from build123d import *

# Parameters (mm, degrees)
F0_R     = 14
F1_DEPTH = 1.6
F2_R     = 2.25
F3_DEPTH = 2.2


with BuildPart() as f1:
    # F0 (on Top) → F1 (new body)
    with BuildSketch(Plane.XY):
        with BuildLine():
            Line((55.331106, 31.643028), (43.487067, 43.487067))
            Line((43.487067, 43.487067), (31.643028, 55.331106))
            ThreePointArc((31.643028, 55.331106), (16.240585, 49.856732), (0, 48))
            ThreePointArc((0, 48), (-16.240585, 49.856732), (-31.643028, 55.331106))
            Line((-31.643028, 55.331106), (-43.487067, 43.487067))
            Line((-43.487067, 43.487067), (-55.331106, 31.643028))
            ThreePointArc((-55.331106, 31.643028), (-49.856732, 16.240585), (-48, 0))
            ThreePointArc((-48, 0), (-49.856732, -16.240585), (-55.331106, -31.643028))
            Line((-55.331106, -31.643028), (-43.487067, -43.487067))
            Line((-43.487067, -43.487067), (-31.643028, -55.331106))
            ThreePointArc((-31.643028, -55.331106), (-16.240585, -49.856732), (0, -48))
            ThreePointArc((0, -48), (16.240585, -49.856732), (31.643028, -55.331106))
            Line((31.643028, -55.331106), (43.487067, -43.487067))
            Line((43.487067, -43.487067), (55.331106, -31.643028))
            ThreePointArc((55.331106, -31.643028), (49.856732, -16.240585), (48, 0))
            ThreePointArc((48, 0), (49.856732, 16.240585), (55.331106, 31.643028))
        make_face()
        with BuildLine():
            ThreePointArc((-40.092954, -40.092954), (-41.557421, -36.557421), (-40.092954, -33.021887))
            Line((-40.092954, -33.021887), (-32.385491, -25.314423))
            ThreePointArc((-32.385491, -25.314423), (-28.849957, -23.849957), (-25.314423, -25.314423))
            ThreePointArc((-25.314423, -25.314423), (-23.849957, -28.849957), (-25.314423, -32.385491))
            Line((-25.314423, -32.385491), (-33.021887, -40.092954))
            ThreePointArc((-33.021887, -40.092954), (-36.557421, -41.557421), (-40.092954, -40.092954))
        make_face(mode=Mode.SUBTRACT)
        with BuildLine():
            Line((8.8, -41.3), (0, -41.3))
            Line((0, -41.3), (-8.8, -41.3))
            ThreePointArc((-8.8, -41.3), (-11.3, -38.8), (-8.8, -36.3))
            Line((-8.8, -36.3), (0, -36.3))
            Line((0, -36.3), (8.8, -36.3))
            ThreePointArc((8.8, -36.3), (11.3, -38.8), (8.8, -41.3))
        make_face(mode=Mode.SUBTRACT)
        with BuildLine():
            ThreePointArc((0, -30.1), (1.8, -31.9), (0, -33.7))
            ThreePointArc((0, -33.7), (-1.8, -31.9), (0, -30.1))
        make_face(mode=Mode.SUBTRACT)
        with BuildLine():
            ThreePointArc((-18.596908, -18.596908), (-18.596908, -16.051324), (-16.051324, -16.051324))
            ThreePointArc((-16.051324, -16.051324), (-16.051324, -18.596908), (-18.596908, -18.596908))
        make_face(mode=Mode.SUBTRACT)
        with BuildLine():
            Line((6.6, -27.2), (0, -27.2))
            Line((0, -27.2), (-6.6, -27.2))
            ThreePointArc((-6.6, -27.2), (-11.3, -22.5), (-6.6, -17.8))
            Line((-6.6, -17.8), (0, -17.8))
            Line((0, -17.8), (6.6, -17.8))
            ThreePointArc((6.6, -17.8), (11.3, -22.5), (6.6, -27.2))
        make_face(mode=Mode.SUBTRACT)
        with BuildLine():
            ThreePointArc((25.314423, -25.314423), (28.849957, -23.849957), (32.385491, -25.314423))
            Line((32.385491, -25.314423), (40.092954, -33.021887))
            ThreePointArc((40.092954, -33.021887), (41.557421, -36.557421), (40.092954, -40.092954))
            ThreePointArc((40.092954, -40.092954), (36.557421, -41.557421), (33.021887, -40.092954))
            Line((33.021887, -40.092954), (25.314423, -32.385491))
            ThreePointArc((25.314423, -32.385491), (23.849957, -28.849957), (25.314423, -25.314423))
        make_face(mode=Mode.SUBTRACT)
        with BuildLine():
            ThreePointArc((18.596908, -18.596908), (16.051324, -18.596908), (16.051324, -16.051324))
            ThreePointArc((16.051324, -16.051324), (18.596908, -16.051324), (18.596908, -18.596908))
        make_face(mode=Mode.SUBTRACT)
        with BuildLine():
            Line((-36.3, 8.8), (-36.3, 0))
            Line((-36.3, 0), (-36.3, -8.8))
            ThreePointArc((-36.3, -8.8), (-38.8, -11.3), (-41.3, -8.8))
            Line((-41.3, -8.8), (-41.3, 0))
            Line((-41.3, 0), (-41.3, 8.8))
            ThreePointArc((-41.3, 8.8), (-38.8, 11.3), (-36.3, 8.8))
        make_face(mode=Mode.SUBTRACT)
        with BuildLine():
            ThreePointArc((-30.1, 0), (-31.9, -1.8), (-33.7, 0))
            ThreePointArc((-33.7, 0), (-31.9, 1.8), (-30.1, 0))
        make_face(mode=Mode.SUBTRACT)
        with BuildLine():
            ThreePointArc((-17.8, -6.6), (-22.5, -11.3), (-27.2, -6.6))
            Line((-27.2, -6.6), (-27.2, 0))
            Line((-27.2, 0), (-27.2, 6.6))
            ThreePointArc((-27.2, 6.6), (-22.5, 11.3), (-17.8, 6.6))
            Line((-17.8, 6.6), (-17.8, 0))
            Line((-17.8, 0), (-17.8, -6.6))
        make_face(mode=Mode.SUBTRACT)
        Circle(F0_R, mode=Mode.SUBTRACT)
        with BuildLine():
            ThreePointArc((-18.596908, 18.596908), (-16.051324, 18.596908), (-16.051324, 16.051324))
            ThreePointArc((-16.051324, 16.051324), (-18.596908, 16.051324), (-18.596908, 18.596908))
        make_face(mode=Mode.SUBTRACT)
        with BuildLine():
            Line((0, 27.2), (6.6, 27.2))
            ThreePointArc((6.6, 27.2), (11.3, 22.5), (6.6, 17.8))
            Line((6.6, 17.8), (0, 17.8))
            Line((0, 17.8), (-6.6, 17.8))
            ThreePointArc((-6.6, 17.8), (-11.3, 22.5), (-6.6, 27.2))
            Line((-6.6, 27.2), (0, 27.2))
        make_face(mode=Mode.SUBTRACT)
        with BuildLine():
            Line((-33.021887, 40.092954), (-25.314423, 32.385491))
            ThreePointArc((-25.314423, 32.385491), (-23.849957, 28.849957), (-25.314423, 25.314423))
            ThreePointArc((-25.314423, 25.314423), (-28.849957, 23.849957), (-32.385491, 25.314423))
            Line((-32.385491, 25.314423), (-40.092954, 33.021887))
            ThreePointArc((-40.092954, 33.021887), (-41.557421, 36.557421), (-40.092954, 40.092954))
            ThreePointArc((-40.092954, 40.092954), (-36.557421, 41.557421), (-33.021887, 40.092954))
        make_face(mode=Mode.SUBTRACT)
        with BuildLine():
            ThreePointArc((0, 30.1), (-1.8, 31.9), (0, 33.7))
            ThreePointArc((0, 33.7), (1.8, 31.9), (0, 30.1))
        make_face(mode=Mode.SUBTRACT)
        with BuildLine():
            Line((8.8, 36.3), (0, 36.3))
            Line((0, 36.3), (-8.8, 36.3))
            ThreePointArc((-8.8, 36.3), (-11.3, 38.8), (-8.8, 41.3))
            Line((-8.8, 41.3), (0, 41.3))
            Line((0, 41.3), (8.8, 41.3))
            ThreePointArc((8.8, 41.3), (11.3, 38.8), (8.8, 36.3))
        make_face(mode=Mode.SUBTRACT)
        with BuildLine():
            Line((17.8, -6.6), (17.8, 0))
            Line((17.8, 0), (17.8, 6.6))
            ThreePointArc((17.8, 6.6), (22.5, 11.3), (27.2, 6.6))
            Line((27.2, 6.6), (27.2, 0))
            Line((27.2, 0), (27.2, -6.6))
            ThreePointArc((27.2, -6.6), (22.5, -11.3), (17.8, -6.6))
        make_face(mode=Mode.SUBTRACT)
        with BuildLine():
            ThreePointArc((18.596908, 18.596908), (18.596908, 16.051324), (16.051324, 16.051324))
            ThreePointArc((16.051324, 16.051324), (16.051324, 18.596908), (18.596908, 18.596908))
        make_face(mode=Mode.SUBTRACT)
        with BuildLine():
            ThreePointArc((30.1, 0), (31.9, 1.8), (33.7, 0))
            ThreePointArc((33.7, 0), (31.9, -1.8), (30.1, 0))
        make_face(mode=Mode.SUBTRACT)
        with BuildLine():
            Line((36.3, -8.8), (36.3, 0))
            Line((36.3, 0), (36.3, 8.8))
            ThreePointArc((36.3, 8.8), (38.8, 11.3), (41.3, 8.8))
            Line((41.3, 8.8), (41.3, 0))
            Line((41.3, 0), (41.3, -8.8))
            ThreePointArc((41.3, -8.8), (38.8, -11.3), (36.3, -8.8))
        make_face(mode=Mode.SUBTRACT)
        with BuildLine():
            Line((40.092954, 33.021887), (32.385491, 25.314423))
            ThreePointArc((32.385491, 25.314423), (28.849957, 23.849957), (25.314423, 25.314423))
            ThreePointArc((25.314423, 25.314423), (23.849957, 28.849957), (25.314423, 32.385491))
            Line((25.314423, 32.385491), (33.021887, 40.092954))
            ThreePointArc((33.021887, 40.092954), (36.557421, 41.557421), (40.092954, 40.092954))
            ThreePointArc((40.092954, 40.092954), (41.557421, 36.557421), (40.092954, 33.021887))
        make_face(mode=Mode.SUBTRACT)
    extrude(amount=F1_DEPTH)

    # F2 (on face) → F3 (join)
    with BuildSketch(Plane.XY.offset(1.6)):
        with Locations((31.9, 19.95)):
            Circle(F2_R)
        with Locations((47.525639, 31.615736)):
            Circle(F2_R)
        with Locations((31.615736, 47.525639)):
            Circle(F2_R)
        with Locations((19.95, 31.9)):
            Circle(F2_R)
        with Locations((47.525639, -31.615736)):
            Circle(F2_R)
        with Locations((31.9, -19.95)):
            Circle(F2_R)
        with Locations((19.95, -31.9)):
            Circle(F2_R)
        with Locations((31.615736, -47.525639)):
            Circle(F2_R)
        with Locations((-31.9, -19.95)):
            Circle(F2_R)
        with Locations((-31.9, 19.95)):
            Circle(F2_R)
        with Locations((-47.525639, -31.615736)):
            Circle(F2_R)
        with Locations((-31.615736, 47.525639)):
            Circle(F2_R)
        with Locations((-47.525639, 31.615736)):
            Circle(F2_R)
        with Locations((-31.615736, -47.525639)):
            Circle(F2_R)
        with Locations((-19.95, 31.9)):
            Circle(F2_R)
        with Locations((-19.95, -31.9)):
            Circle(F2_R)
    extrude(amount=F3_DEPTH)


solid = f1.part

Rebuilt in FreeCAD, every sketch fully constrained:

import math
import FreeCAD as App
import Part
import Sketcher
Q = App.Units.Quantity

doc = App.newDocument("Part")
params = doc.addObject("Spreadsheet::Sheet", "Params")
for row, (alias, value) in enumerate([
    ("sketch1_diameter", "28 mm"),
    ("sketch1_radius", "5 mm"),
    ("sketch1_diameter2", "3.599999 mm"),
    ("sketch1_radius2", "2.5 mm"),
    ("sketch1_radius3", "4.7 mm"),
    ("pad1_length", "1.6 mm"),
    ("sketch2_diameter", "4.5 mm"),
    ("pad2_length", "2.2 mm"),
], start=1):
    params.set(f"A{row}", alias)
    params.set(f"B{row}", "=" + value)
    params.setAlias(f"B{row}", alias)

body = doc.addObject("PartDesign::Body", "Body")

# Sketch on XY plane
sketch1 = body.newObject("Sketcher::SketchObject", "Sketch")
sketch1.AttachmentSupport = (doc.getObject("XY_Plane"), [""])
sketch1.MapMode = "FlatFace"
sketch1.addGeometry([
    Part.LineSegment(App.Vector(55.3, 31.6, 0), App.Vector(31.6, 55.3, 0)),  # 0
    Part.ArcOfCircle(Part.Circle(App.Vector(0, 120, 0), App.Vector(0, 0, 1), 72), math.radians(-90), math.radians(-64)),  # 1
    Part.ArcOfCircle(Part.Circle(App.Vector(0, 120, 0), App.Vector(0, 0, 1), 72), math.radians(-116), math.radians(-90)),  # 2
    Part.LineSegment(App.Vector(-31.6, 55.3, 0), App.Vector(-55.3, 31.6, 0)),  # 3
    Part.ArcOfCircle(Part.Circle(App.Vector(-120, 0, 0), App.Vector(0, 0, 1), 72), math.radians(0), math.radians(26)),  # 4
    Part.ArcOfCircle(Part.Circle(App.Vector(-120, 0, 0), App.Vector(0, 0, 1), 72), math.radians(-26), math.radians(0)),  # 5
    Part.LineSegment(App.Vector(-55.3, -31.6, 0), App.Vector(-31.6, -55.3, 0)),  # 6
    Part.ArcOfCircle(Part.Circle(App.Vector(0, -120, 0), App.Vector(0, 0, 1), 72), math.radians(90), math.radians(116)),  # 7
    Part.ArcOfCircle(Part.Circle(App.Vector(0, -120, 0), App.Vector(0, 0, 1), 72), math.radians(64), math.radians(90)),  # 8
    Part.LineSegment(App.Vector(31.6, -55.3, 0), App.Vector(55.3, -31.6, 0)),  # 9
    Part.ArcOfCircle(Part.Circle(App.Vector(120, 0, 0), App.Vector(0, 0, 1), 72), math.radians(180), math.radians(206)),  # 10
    Part.ArcOfCircle(Part.Circle(App.Vector(120, 0, 0), App.Vector(0, 0, 1), 72), math.radians(154), math.radians(180)),  # 11
    Part.ArcOfCircle(Part.Circle(App.Vector(-36.6, -36.6, 0), App.Vector(0, 0, 1), 5), math.radians(-135), math.radians(-45)),  # 12
    Part.ArcOfCircle(Part.Circle(App.Vector(-36.6, -36.6, 0), App.Vector(0, 0, 1), 5), math.radians(135), math.radians(225)),  # 13
    Part.LineSegment(App.Vector(-40.1, -33, 0), App.Vector(-32.4, -25.3, 0)),  # 14
    Part.ArcOfCircle(Part.Circle(App.Vector(-28.8, -28.8, 0), App.Vector(0, 0, 1), 5), math.radians(45), math.radians(135)),  # 15
    Part.ArcOfCircle(Part.Circle(App.Vector(-28.8, -28.8, 0), App.Vector(0, 0, 1), 5), math.radians(-45), math.radians(45)),  # 16
    Part.LineSegment(App.Vector(-25.3, -32.4, 0), App.Vector(-33, -40.1, 0)),  # 17
    Part.Circle(App.Vector(-17.3, -17.3, 0), App.Vector(0, 0, 1), 1.8),  # 18
    Part.ArcOfCircle(Part.Circle(App.Vector(8.8, -38.8, 0), App.Vector(0, 0, 1), 2.5), math.radians(-90), math.radians(90)),  # 19
    Part.LineSegment(App.Vector(8.8, -41.3, 0), App.Vector(-8.8, -41.3, 0)),  # 20
    Part.ArcOfCircle(Part.Circle(App.Vector(-8.8, -38.8, 0), App.Vector(0, 0, 1), 2.5), math.radians(90), math.radians(270)),  # 21
    Part.LineSegment(App.Vector(-8.8, -36.3, 0), App.Vector(8.8, -36.3, 0)),  # 22
    Part.Circle(App.Vector(0, -31.9, 0), App.Vector(0, 0, 1), 1.8),  # 23
    Part.ArcOfCircle(Part.Circle(App.Vector(6.6, -22.5, 0), App.Vector(0, 0, 1), 4.7), math.radians(-90), math.radians(90)),  # 24
    Part.LineSegment(App.Vector(6.6, -27.2, 0), App.Vector(-6.6, -27.2, 0)),  # 25
    Part.ArcOfCircle(Part.Circle(App.Vector(-6.6, -22.5, 0), App.Vector(0, 0, 1), 4.7), math.radians(90), math.radians(270)),  # 26
    Part.LineSegment(App.Vector(-6.6, -17.8, 0), App.Vector(6.6, -17.8, 0)),  # 27
    Part.ArcOfCircle(Part.Circle(App.Vector(28.8, -28.8, 0), App.Vector(0, 0, 1), 5), math.radians(135), math.radians(225)),  # 28
    Part.ArcOfCircle(Part.Circle(App.Vector(28.8, -28.8, 0), App.Vector(0, 0, 1), 5), math.radians(45), math.radians(135)),  # 29
    Part.LineSegment(App.Vector(32.4, -25.3, 0), App.Vector(40.1, -33, 0)),  # 30
    Part.ArcOfCircle(Part.Circle(App.Vector(36.6, -36.6, 0), App.Vector(0, 0, 1), 5), math.radians(-45), math.radians(45)),  # 31
    Part.ArcOfCircle(Part.Circle(App.Vector(36.6, -36.6, 0), App.Vector(0, 0, 1), 5), math.radians(-135), math.radians(-45)),  # 32
    Part.LineSegment(App.Vector(33, -40.1, 0), App.Vector(25.3, -32.4, 0)),  # 33
    Part.Circle(App.Vector(17.3, -17.3, 0), App.Vector(0, 0, 1), 1.8),  # 34
    Part.Circle(App.Vector(31.9, 0, 0), App.Vector(0, 0, 1), 1.8),  # 35
    Part.ArcOfCircle(Part.Circle(App.Vector(-38.8, 8.8, 0), App.Vector(0, 0, 1), 2.5), math.radians(0), math.radians(180)),  # 36
    Part.LineSegment(App.Vector(-36.3, 8.8, 0), App.Vector(-36.3, -8.8, 0)),  # 37
    Part.ArcOfCircle(Part.Circle(App.Vector(-38.8, -8.8, 0), App.Vector(0, 0, 1), 2.5), math.radians(180), math.radians(360)),  # 38
    Part.LineSegment(App.Vector(-41.3, -8.8, 0), App.Vector(-41.3, 8.8, 0)),  # 39
    Part.Circle(App.Vector(-31.9, 0, 0), App.Vector(0, 0, 1), 1.8),  # 40
    Part.LineSegment(App.Vector(-17.8, 6.6, 0), App.Vector(-17.8, -6.6, 0)),  # 41
    Part.ArcOfCircle(Part.Circle(App.Vector(-22.5, -6.6, 0), App.Vector(0, 0, 1), 4.7), math.radians(180), math.radians(360)),  # 42
    Part.LineSegment(App.Vector(-27.2, -6.6, 0), App.Vector(-27.2, 6.6, 0)),  # 43
    Part.ArcOfCircle(Part.Circle(App.Vector(-22.5, 6.6, 0), App.Vector(0, 0, 1), 4.7), math.radians(0), math.radians(180)),  # 44
    Part.Circle(App.Vector(-17.3, 17.3, 0), App.Vector(0, 0, 1), 1.8),  # 45
    Part.ArcOfCircle(Part.Circle(App.Vector(-36.6, 36.6, 0), App.Vector(0, 0, 1), 5), math.radians(45), math.radians(135)),  # 46
    Part.LineSegment(App.Vector(-33, 40.1, 0), App.Vector(-25.3, 32.4, 0)),  # 47
    Part.ArcOfCircle(Part.Circle(App.Vector(-28.8, 28.8, 0), App.Vector(0, 0, 1), 5), math.radians(-45), math.radians(45)),  # 48
    Part.ArcOfCircle(Part.Circle(App.Vector(-28.8, 28.8, 0), App.Vector(0, 0, 1), 5), math.radians(-135), math.radians(-45)),  # 49
    Part.LineSegment(App.Vector(-32.4, 25.3, 0), App.Vector(-40.1, 33, 0)),  # 50
    Part.ArcOfCircle(Part.Circle(App.Vector(-36.6, 36.6, 0), App.Vector(0, 0, 1), 5), math.radians(135), math.radians(225)),  # 51
    Part.Circle(App.Vector(0, 0, 0), App.Vector(0, 0, 1), 14),  # 52
    Part.Circle(App.Vector(17.3, 17.3, 0), App.Vector(0, 0, 1), 1.8),  # 53
    Part.ArcOfCircle(Part.Circle(App.Vector(22.5, -6.6, 0), App.Vector(0, 0, 1), 4.7), math.radians(180), math.radians(360)),  # 54
    Part.LineSegment(App.Vector(17.8, -6.6, 0), App.Vector(17.8, 6.6, 0)),  # 55
    Part.ArcOfCircle(Part.Circle(App.Vector(22.5, 6.6, 0), App.Vector(0, 0, 1), 4.7), math.radians(0), math.radians(180)),  # 56
    Part.LineSegment(App.Vector(27.2, 6.6, 0), App.Vector(27.2, -6.6, 0)),  # 57
    Part.ArcOfCircle(Part.Circle(App.Vector(38.8, -8.8, 0), App.Vector(0, 0, 1), 2.5), math.radians(180), math.radians(360)),  # 58
    Part.LineSegment(App.Vector(36.3, -8.8, 0), App.Vector(36.3, 8.8, 0)),  # 59
    Part.ArcOfCircle(Part.Circle(App.Vector(38.8, 8.8, 0), App.Vector(0, 0, 1), 2.5), math.radians(0), math.radians(180)),  # 60
    Part.LineSegment(App.Vector(41.3, 8.8, 0), App.Vector(41.3, -8.8, 0)),  # 61
    Part.LineSegment(App.Vector(-6.6, 27.2, 0), App.Vector(6.6, 27.2, 0)),  # 62
    Part.ArcOfCircle(Part.Circle(App.Vector(6.6, 22.5, 0), App.Vector(0, 0, 1), 4.7), math.radians(-90), math.radians(90)),  # 63
    Part.LineSegment(App.Vector(6.6, 17.8, 0), App.Vector(-6.6, 17.8, 0)),  # 64
    Part.ArcOfCircle(Part.Circle(App.Vector(-6.6, 22.5, 0), App.Vector(0, 0, 1), 4.7), math.radians(90), math.radians(270)),  # 65
    Part.Circle(App.Vector(0, 31.9, 0), App.Vector(0, 0, 1), 1.8),  # 66
    Part.ArcOfCircle(Part.Circle(App.Vector(8.8, 38.8, 0), App.Vector(0, 0, 1), 2.5), math.radians(-90), math.radians(90)),  # 67
    Part.LineSegment(App.Vector(8.8, 36.3, 0), App.Vector(-8.8, 36.3, 0)),  # 68
    Part.ArcOfCircle(Part.Circle(App.Vector(-8.8, 38.8, 0), App.Vector(0, 0, 1), 2.5), math.radians(90), math.radians(270)),  # 69
    Part.LineSegment(App.Vector(-8.8, 41.3, 0), App.Vector(8.8, 41.3, 0)),  # 70
    Part.ArcOfCircle(Part.Circle(App.Vector(36.6, 36.6, 0), App.Vector(0, 0, 1), 5), math.radians(-45), math.radians(45)),  # 71
    Part.LineSegment(App.Vector(40.1, 33, 0), App.Vector(32.4, 25.3, 0)),  # 72
    Part.ArcOfCircle(Part.Circle(App.Vector(28.8, 28.8, 0), App.Vector(0, 0, 1), 5), math.radians(-135), math.radians(-45)),  # 73
    Part.ArcOfCircle(Part.Circle(App.Vector(28.8, 28.8, 0), App.Vector(0, 0, 1), 5), math.radians(135), math.radians(225)),  # 74
    Part.LineSegment(App.Vector(25.3, 32.4, 0), App.Vector(33, 40.1, 0)),  # 75
    Part.ArcOfCircle(Part.Circle(App.Vector(36.6, 36.6, 0), App.Vector(0, 0, 1), 5), math.radians(45), math.radians(135)),  # 76
], False)
sketch1.addConstraint([
    Sketcher.Constraint("Coincident", 0, 2, 1, 2),
    Sketcher.Constraint("Tangent", 1, 1, 2, 2),
    Sketcher.Constraint("Coincident", 2, 1, 3, 1),
    Sketcher.Constraint("Coincident", 3, 2, 4, 2),
    Sketcher.Constraint("Tangent", 4, 1, 5, 2),
    Sketcher.Constraint("Coincident", 5, 1, 6, 1),
    Sketcher.Constraint("Coincident", 6, 2, 7, 2),
    Sketcher.Constraint("Tangent", 7, 1, 8, 2),
    Sketcher.Constraint("Coincident", 8, 1, 9, 1),
    Sketcher.Constraint("Coincident", 9, 2, 10, 2),
    Sketcher.Constraint("Tangent", 10, 1, 11, 2),
    Sketcher.Constraint("Coincident", 11, 1, 0, 1),
    Sketcher.Constraint("Tangent", 12, 1, 13, 2),
    Sketcher.Constraint("Tangent", 13, 1, 14, 1),
    Sketcher.Constraint("Tangent", 14, 2, 15, 2),
    Sketcher.Constraint("Tangent", 15, 1, 16, 2),
    Sketcher.Constraint("Tangent", 16, 1, 17, 1),
    Sketcher.Constraint("Tangent", 17, 2, 12, 2),
    Sketcher.Constraint("Tangent", 19, 1, 20, 1),
    Sketcher.Constraint("Tangent", 20, 2, 21, 2),
    Sketcher.Constraint("Tangent", 21, 1, 22, 1),
    Sketcher.Constraint("Tangent", 22, 2, 19, 2),
    Sketcher.Constraint("Tangent", 24, 1, 25, 1),
    Sketcher.Constraint("Tangent", 25, 2, 26, 2),
    Sketcher.Constraint("Tangent", 26, 1, 27, 1),
    Sketcher.Constraint("Tangent", 27, 2, 24, 2),
    Sketcher.Constraint("Tangent", 28, 1, 29, 2),
    Sketcher.Constraint("Tangent", 29, 1, 30, 1),
    Sketcher.Constraint("Tangent", 30, 2, 31, 2),
    Sketcher.Constraint("Tangent", 31, 1, 32, 2),
    Sketcher.Constraint("Tangent", 32, 1, 33, 1),
    Sketcher.Constraint("Tangent", 33, 2, 28, 2),
    Sketcher.Constraint("Tangent", 36, 1, 37, 1),
    Sketcher.Constraint("Tangent", 37, 2, 38, 2),
    Sketcher.Constraint("Tangent", 38, 1, 39, 1),
    Sketcher.Constraint("Tangent", 39, 2, 36, 2),
    Sketcher.Constraint("Tangent", 41, 2, 42, 2),
    Sketcher.Constraint("Tangent", 42, 1, 43, 1),
    Sketcher.Constraint("Tangent", 43, 2, 44, 2),
    Sketcher.Constraint("Tangent", 44, 1, 41, 1),
    Sketcher.Constraint("Tangent", 46, 1, 47, 1),
    Sketcher.Constraint("Tangent", 47, 2, 48, 2),
    Sketcher.Constraint("Tangent", 48, 1, 49, 2),
    Sketcher.Constraint("Tangent", 49, 1, 50, 1),
    Sketcher.Constraint("Tangent", 50, 2, 51, 2),
    Sketcher.Constraint("Tangent", 51, 1, 46, 2),
    Sketcher.Constraint("Tangent", 54, 1, 55, 1),
    Sketcher.Constraint("Tangent", 55, 2, 56, 2),
    Sketcher.Constraint("Tangent", 56, 1, 57, 1),
    Sketcher.Constraint("Tangent", 57, 2, 54, 2),
    Sketcher.Constraint("Tangent", 58, 1, 59, 1),
    Sketcher.Constraint("Tangent", 59, 2, 60, 2),
    Sketcher.Constraint("Tangent", 60, 1, 61, 1),
    Sketcher.Constraint("Tangent", 61, 2, 58, 2),
    Sketcher.Constraint("Tangent", 62, 2, 63, 2),
    Sketcher.Constraint("Tangent", 63, 1, 64, 1),
    Sketcher.Constraint("Tangent", 64, 2, 65, 2),
    Sketcher.Constraint("Tangent", 65, 1, 62, 1),
    Sketcher.Constraint("Tangent", 67, 1, 68, 1),
    Sketcher.Constraint("Tangent", 68, 2, 69, 2),
    Sketcher.Constraint("Tangent", 69, 1, 70, 1),
    Sketcher.Constraint("Tangent", 70, 2, 67, 2),
    Sketcher.Constraint("Tangent", 71, 1, 72, 1),
    Sketcher.Constraint("Tangent", 72, 2, 73, 2),
    Sketcher.Constraint("Tangent", 73, 1, 74, 2),
    Sketcher.Constraint("Tangent", 74, 1, 75, 1),
    Sketcher.Constraint("Tangent", 75, 2, 76, 2),
    Sketcher.Constraint("Tangent", 76, 1, 71, 2),
    Sketcher.Constraint("Horizontal", 20),
    Sketcher.Constraint("Horizontal", 22),
    Sketcher.Constraint("Horizontal", 25),
    Sketcher.Constraint("Horizontal", 27),
    Sketcher.Constraint("Vertical", 37),
    Sketcher.Constraint("Vertical", 39),
    Sketcher.Constraint("Vertical", 41),
    Sketcher.Constraint("Vertical", 43),
    Sketcher.Constraint("Vertical", 55),
    Sketcher.Constraint("Vertical", 57),
    Sketcher.Constraint("Vertical", 59),
    Sketcher.Constraint("Vertical", 61),
    Sketcher.Constraint("Horizontal", 62),
    Sketcher.Constraint("Horizontal", 64),
    Sketcher.Constraint("Horizontal", 68),
    Sketcher.Constraint("Horizontal", 70),
    Sketcher.Constraint("Coincident", 52, 3, -1, 1),
    Sketcher.Constraint("Equal", 1, 2),
    Sketcher.Constraint("Equal", 2, 4),
    Sketcher.Constraint("Equal", 4, 5),
    Sketcher.Constraint("Equal", 5, 7),
    Sketcher.Constraint("Equal", 7, 8),
    Sketcher.Constraint("Equal", 8, 10),
    Sketcher.Constraint("Equal", 10, 11),
    Sketcher.Constraint("Equal", 12, 13),
    Sketcher.Constraint("Equal", 15, 16),
    Sketcher.Constraint("Equal", 18, 23),
    Sketcher.Constraint("Equal", 16, 28),
    Sketcher.Constraint("Equal", 28, 29),
    Sketcher.Constraint("Equal", 13, 31),
    Sketcher.Constraint("Equal", 31, 32),
    Sketcher.Constraint("Equal", 23, 34),
    Sketcher.Constraint("Equal", 34, 35),
    Sketcher.Constraint("Equal", 21, 36),
    Sketcher.Constraint("Equal", 35, 40),
    Sketcher.Constraint("Equal", 26, 42),
    Sketcher.Constraint("Equal", 40, 45),
    Sketcher.Constraint("Equal", 32, 46),
    Sketcher.Constraint("Equal", 29, 48),
    Sketcher.Constraint("Equal", 48, 49),
    Sketcher.Constraint("Equal", 46, 51),
    Sketcher.Constraint("Equal", 45, 53),
    Sketcher.Constraint("Equal", 44, 54),
    Sketcher.Constraint("Equal", 38, 58),
    Sketcher.Constraint("Equal", 56, 63),
    Sketcher.Constraint("Equal", 53, 66),
    Sketcher.Constraint("Equal", 60, 67),
    Sketcher.Constraint("Equal", 51, 71),
    Sketcher.Constraint("Equal", 49, 73),
    Sketcher.Constraint("Equal", 73, 74),
    Sketcher.Constraint("Equal", 71, 76),
    Sketcher.Constraint("Symmetric", 1, 3, 7, 3, -1, 1),
    Sketcher.Constraint("Symmetric", 4, 3, 10, 3, -1, 1),
    Sketcher.Constraint("Symmetric", 35, 3, 40, 3, -1, 1),
    Sketcher.Constraint("Symmetric", 34, 3, 45, 3, -1, 1),
    Sketcher.Constraint("Symmetric", 31, 3, 46, 3, -1, 1),
    Sketcher.Constraint("Symmetric", 28, 3, 48, 3, -1, 1),
    Sketcher.Constraint("Symmetric", 18, 3, 53, 3, -1, 1),
    Sketcher.Constraint("Symmetric", 44, 3, 54, 3, -1, 1),
    Sketcher.Constraint("Symmetric", 36, 3, 58, 3, -1, 1),
    Sketcher.Constraint("Symmetric", 26, 3, 63, 3, -1, 1),
    Sketcher.Constraint("Symmetric", 23, 3, 66, 3, -1, 1),
    Sketcher.Constraint("Symmetric", 21, 3, 67, 3, -1, 1),
    Sketcher.Constraint("Symmetric", 12, 3, 71, 3, -1, 1),
    Sketcher.Constraint("Symmetric", 15, 3, 73, 3, -1, 1),
    Sketcher.Constraint("Symmetric", 15, 3, 28, 3, -2),
    Sketcher.Constraint("Symmetric", 12, 3, 31, 3, -2),
    Sketcher.Constraint("Symmetric", 18, 3, 34, 3, -2),
    Sketcher.Constraint("Symmetric", 0, 2, 2, 1, -2),
    Sketcher.Constraint("Symmetric", 5, 1, 9, 2, -2),
    Sketcher.Constraint("PointOnObject", 23, 3, -2),
    Sketcher.Constraint("PointOnObject", 35, 3, -1),
    Sketcher.Constraint("PointOnObject", 1, 1, -2),
    Sketcher.Constraint("PointOnObject", 4, 1, -1),
    Sketcher.Constraint("PointOnObject", 7, 1, -2),
    Sketcher.Constraint("PointOnObject", 10, 1, -1),
    Sketcher.Constraint("Perpendicular", 0, 3),
    Sketcher.Constraint("Perpendicular", 3, 6),
    Sketcher.Constraint("Perpendicular", 6, 9),
    Sketcher.Constraint("Parallel", 9, 14),
    Sketcher.Constraint("Parallel", 14, 17),
    Sketcher.Constraint("Perpendicular", 17, 30),
    Sketcher.Constraint("Horizontal", 42, 3, 54, 3),
    Sketcher.Constraint("Horizontal", 44, 3, 56, 3),
    Sketcher.Constraint("Horizontal", 38, 3, 58, 3),
    Sketcher.Constraint("Horizontal", 36, 3, 60, 3),
    Sketcher.Constraint("Horizontal", 14, 2, 15, 1),
    Sketcher.Constraint("Horizontal", 12, 1, 17, 2),
    Sketcher.Constraint("Horizontal", 15, 1, 28, 1),
    Sketcher.Constraint("Horizontal", 17, 2, 31, 1),
    Sketcher.Constraint("Horizontal", 48, 1, 49, 1),
    Sketcher.Constraint("Horizontal", 46, 1, 51, 1),
    Sketcher.Constraint("Horizontal", 72, 2, 73, 1),
    Sketcher.Constraint("Horizontal", 75, 2, 76, 1),
    Sketcher.Constraint("Vertical", 24, 3, 63, 3),
    Sketcher.Constraint("Vertical", 26, 3, 65, 3),
    Sketcher.Constraint("Vertical", 19, 3, 67, 3),
    Sketcher.Constraint("Vertical", 21, 3, 69, 3),
    Sketcher.Constraint("Vertical", 3, 2, 5, 1),
    Sketcher.Constraint("Equal", 70, 37),
    Sketcher.Constraint("Equal", 64, 41),
    Sketcher.Constraint("Diameter", 52, Q("28 mm")),
    Sketcher.Constraint("Radius", 15, Q("5 mm")),
    Sketcher.Constraint("Diameter", 18, Q("3.599999 mm")),
    Sketcher.Constraint("Radius", 19, Q("2.5 mm")),
    Sketcher.Constraint("Radius", 24, Q("4.7 mm")),
    Sketcher.Constraint("DistanceX", 20, 2, 20, 1, Q("17.6 mm")),
    Sketcher.Constraint("DistanceX", 25, 2, 25, 1, Q("13.2 mm")),
    Sketcher.Constraint("DistanceY", -1, 1, 1, 1, Q("48 mm")),
    Sketcher.Constraint("DistanceX", 4, 1, -1, 1, Q("48 mm")),
    Sketcher.Constraint("Distance", 0, Q("33.500001 mm")),
    Sketcher.Constraint("Distance", 14, Q("10.899999 mm")),
    Sketcher.Constraint("DistanceY", 19, 3, -1, 1, Q("38.8 mm")),
    Sketcher.Constraint("DistanceY", 23, 3, -1, 1, Q("31.9 mm")),
    Sketcher.Constraint("DistanceY", 24, 3, -1, 1, Q("22.5 mm")),
    Sketcher.Constraint("DistanceX", -1, 1, 35, 3, Q("31.9 mm")),
    Sketcher.Constraint("DistanceX", 36, 3, -1, 1, Q("38.8 mm")),
    Sketcher.Constraint("DistanceX", 42, 3, -1, 1, Q("22.5 mm")),
    Sketcher.Constraint("Radius", 1, Q("71.955465 mm")),
    Sketcher.Constraint("DistanceX", 12, 3, -1, 1, Q("36.55742 mm")),
    Sketcher.Constraint("DistanceY", 13, 3, -1, 1, Q("36.55742 mm")),
    Sketcher.Constraint("DistanceX", 18, 3, -1, 1, Q("17.324116 mm")),
    Sketcher.Constraint("DistanceY", 18, 3, -1, 1, Q("17.324116 mm")),
])
sketch1.setExpression("Constraints[169]", "Params.sketch1_diameter")
sketch1.setExpression("Constraints[170]", "Params.sketch1_radius")
sketch1.setExpression("Constraints[171]", "Params.sketch1_diameter2")
sketch1.setExpression("Constraints[172]", "Params.sketch1_radius2")
sketch1.setExpression("Constraints[173]", "Params.sketch1_radius3")
pad1 = body.newObject("PartDesign::Pad", "Pad")
pad1.Profile = sketch1
pad1.setExpression("Length", "Params.pad1_length")

# Sketch on XY plane
sketch2 = body.newObject("Sketcher::SketchObject", "Sketch001")
sketch2.AttachmentSupport = (doc.getObject("XY_Plane"), [""])
sketch2.MapMode = "FlatFace"
sketch2.AttachmentOffset = App.Placement(App.Vector(0, 0, 1.6), App.Rotation())
sketch2.addGeometry([
    Part.Circle(App.Vector(31.9, 19.9, 0), App.Vector(0, 0, 1), 2.2),  # 0
    Part.Circle(App.Vector(47.5, 31.6, 0), App.Vector(0, 0, 1), 2.2),  # 1
    Part.Circle(App.Vector(31.6, 47.5, 0), App.Vector(0, 0, 1), 2.2),  # 2
    Part.Circle(App.Vector(19.9, 31.9, 0), App.Vector(0, 0, 1), 2.2),  # 3
    Part.Circle(App.Vector(47.5, -31.6, 0), App.Vector(0, 0, 1), 2.2),  # 4
    Part.Circle(App.Vector(31.9, -19.9, 0), App.Vector(0, 0, 1), 2.2),  # 5
    Part.Circle(App.Vector(19.9, -31.9, 0), App.Vector(0, 0, 1), 2.2),  # 6
    Part.Circle(App.Vector(31.6, -47.5, 0), App.Vector(0, 0, 1), 2.2),  # 7
    Part.Circle(App.Vector(-31.9, -19.9, 0), App.Vector(0, 0, 1), 2.2),  # 8
    Part.Circle(App.Vector(-31.9, 19.9, 0), App.Vector(0, 0, 1), 2.2),  # 9
    Part.Circle(App.Vector(-47.5, -31.6, 0), App.Vector(0, 0, 1), 2.2),  # 10
    Part.Circle(App.Vector(-31.6, 47.5, 0), App.Vector(0, 0, 1), 2.2),  # 11
    Part.Circle(App.Vector(-47.5, 31.6, 0), App.Vector(0, 0, 1), 2.2),  # 12
    Part.Circle(App.Vector(-31.6, -47.5, 0), App.Vector(0, 0, 1), 2.2),  # 13
    Part.Circle(App.Vector(-19.9, 31.9, 0), App.Vector(0, 0, 1), 2.2),  # 14
    Part.Circle(App.Vector(-19.9, -31.9, 0), App.Vector(0, 0, 1), 2.2),  # 15
], False)
sketch2.addConstraint([
    Sketcher.Constraint("Equal", 0, 1),
    Sketcher.Constraint("Equal", 1, 2),
    Sketcher.Constraint("Equal", 2, 3),
    Sketcher.Constraint("Equal", 3, 4),
    Sketcher.Constraint("Equal", 4, 5),
    Sketcher.Constraint("Equal", 5, 6),
    Sketcher.Constraint("Equal", 6, 7),
    Sketcher.Constraint("Equal", 7, 8),
    Sketcher.Constraint("Equal", 8, 9),
    Sketcher.Constraint("Equal", 9, 10),
    Sketcher.Constraint("Equal", 10, 11),
    Sketcher.Constraint("Equal", 11, 12),
    Sketcher.Constraint("Equal", 12, 13),
    Sketcher.Constraint("Equal", 13, 14),
    Sketcher.Constraint("Equal", 14, 15),
    Sketcher.Constraint("Symmetric", 0, 3, 8, 3, -1, 1),
    Sketcher.Constraint("Symmetric", 5, 3, 9, 3, -1, 1),
    Sketcher.Constraint("Symmetric", 1, 3, 10, 3, -1, 1),
    Sketcher.Constraint("Symmetric", 7, 3, 11, 3, -1, 1),
    Sketcher.Constraint("Symmetric", 4, 3, 12, 3, -1, 1),
    Sketcher.Constraint("Symmetric", 2, 3, 13, 3, -1, 1),
    Sketcher.Constraint("Symmetric", 6, 3, 14, 3, -1, 1),
    Sketcher.Constraint("Symmetric", 3, 3, 15, 3, -1, 1),
    Sketcher.Constraint("Symmetric", 5, 3, 8, 3, -2),
    Sketcher.Constraint("Symmetric", 4, 3, 10, 3, -2),
    Sketcher.Constraint("Symmetric", 2, 3, 11, 3, -2),
    Sketcher.Constraint("Symmetric", 3, 3, 14, 3, -2),
    Sketcher.Constraint("Diameter", 0, Q("4.5 mm")),
    Sketcher.Constraint("DistanceX", -1, 1, 0, 3, Q("31.9 mm")),
    Sketcher.Constraint("DistanceY", -1, 1, 3, 3, Q("31.9 mm")),
    Sketcher.Constraint("DistanceY", 5, 3, 0, 3, Q("39.9 mm")),
    Sketcher.Constraint("DistanceX", 14, 3, 3, 3, Q("39.9 mm")),
    Sketcher.Constraint("DistanceX", -1, 1, 1, 3, Q("47.525639 mm")),
    Sketcher.Constraint("DistanceY", -1, 1, 2, 3, Q("47.525639 mm")),
    Sketcher.Constraint("DistanceY", 4, 3, 1, 3, Q("63.231472 mm")),
    Sketcher.Constraint("DistanceX", 11, 3, 2, 3, Q("63.231472 mm")),
])
sketch2.setExpression("Constraints[27]", "Params.sketch2_diameter")
pad2 = body.newObject("PartDesign::Pad", "Pad001")
pad2.Profile = sketch2
pad2.setExpression("Length", "Params.pad2_length")

doc.recompute()
